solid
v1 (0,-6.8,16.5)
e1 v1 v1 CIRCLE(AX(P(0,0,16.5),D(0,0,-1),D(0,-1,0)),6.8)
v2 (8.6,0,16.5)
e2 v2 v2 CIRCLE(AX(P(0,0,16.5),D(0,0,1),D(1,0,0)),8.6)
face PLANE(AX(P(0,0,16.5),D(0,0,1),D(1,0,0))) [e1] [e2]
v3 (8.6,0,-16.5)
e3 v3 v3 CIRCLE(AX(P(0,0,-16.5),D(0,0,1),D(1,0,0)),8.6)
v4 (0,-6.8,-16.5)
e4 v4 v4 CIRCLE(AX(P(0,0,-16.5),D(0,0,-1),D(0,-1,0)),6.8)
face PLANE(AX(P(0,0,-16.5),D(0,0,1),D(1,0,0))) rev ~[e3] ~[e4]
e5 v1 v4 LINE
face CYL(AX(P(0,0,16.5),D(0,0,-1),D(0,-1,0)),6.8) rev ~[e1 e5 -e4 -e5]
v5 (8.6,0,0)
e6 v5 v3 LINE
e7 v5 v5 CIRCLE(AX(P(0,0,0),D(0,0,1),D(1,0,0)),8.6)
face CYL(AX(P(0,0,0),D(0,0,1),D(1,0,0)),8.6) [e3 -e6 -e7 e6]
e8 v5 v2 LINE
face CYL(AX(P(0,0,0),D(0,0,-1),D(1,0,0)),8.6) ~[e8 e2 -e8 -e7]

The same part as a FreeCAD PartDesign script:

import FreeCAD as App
import Part
import Sketcher
from FreeCAD import Vector
Q = App.Units.Quantity

doc = App.newDocument("Part")
params = doc.addObject("Spreadsheet::Sheet", "Params")
for row, (alias, value) in enumerate([
    ("sketch1_diameter", "17.2 mm"),
    ("pad1_length", "33 mm"),
    ("sketch2_diameter", "13.6 mm"),
    ("hole_diameter", "13.6 mm"),
], start=1):
    params.set(f"A{row}", alias)
    params.set(f"B{row}", "=" + value)
    params.setAlias(f"B{row}", alias)

body = doc.addObject("PartDesign::Body", "Body")

# Sketch on XY plane
sketch1 = doc.addObject("Sketcher::SketchObject", "Sketch")
body.addObject(sketch1)
sketch1.AttachmentSupport = (doc.XY_Plane, [""])
sketch1.MapMode = "FlatFace"
sketch1.addGeometry(Part.Circle(Vector(0, 0, 0), Vector(0, 0, 1), 8.6), False)
sketch1.addConstraint([
    Sketcher.Constraint("Coincident", 0, 3, -1, 1),
    Sketcher.Constraint("Diameter", 0, Q("17.2 mm")),
])
sketch1.setExpression("Constraints[1]", "Params.sketch1_diameter")
pad1 = doc.addObject("PartDesign::Pad", "Pad")
body.addObject(pad1)
pad1.Profile = sketch1
pad1.setExpression("Length", "Params.pad1_length")
pad1.Midplane = True

# Sketch on XY plane
sketch2 = doc.addObject("Sketcher::SketchObject", "Sketch001")
body.addObject(sketch2)
sketch2.AttachmentSupport = (doc.XY_Plane, [""])
sketch2.MapMode = "FlatFace"
sketch2.AttachmentOffset = App.Placement(Vector(0, 0, 16.5), App.Rotation())
sketch2.addGeometry(Part.Circle(Vector(0, 0, 0), Vector(0, 0, 1), 6.8), False)
sketch2.addConstraint([
    Sketcher.Constraint("Coincident", 0, 3, -1, 1),
    Sketcher.Constraint("Diameter", 0, Q("13.6 mm")),
])
sketch2.setExpression("Constraints[1]", "Params.sketch2_diameter")
doc.recompute()
hole = doc.addObject("PartDesign::Hole", "Hole")
body.addObject(hole)
hole.Profile = sketch2
hole.ThreadType = "None"
hole.setExpression("Diameter", "Params.hole_diameter")
hole.DepthType = "ThroughAll"

doc.recompute()
